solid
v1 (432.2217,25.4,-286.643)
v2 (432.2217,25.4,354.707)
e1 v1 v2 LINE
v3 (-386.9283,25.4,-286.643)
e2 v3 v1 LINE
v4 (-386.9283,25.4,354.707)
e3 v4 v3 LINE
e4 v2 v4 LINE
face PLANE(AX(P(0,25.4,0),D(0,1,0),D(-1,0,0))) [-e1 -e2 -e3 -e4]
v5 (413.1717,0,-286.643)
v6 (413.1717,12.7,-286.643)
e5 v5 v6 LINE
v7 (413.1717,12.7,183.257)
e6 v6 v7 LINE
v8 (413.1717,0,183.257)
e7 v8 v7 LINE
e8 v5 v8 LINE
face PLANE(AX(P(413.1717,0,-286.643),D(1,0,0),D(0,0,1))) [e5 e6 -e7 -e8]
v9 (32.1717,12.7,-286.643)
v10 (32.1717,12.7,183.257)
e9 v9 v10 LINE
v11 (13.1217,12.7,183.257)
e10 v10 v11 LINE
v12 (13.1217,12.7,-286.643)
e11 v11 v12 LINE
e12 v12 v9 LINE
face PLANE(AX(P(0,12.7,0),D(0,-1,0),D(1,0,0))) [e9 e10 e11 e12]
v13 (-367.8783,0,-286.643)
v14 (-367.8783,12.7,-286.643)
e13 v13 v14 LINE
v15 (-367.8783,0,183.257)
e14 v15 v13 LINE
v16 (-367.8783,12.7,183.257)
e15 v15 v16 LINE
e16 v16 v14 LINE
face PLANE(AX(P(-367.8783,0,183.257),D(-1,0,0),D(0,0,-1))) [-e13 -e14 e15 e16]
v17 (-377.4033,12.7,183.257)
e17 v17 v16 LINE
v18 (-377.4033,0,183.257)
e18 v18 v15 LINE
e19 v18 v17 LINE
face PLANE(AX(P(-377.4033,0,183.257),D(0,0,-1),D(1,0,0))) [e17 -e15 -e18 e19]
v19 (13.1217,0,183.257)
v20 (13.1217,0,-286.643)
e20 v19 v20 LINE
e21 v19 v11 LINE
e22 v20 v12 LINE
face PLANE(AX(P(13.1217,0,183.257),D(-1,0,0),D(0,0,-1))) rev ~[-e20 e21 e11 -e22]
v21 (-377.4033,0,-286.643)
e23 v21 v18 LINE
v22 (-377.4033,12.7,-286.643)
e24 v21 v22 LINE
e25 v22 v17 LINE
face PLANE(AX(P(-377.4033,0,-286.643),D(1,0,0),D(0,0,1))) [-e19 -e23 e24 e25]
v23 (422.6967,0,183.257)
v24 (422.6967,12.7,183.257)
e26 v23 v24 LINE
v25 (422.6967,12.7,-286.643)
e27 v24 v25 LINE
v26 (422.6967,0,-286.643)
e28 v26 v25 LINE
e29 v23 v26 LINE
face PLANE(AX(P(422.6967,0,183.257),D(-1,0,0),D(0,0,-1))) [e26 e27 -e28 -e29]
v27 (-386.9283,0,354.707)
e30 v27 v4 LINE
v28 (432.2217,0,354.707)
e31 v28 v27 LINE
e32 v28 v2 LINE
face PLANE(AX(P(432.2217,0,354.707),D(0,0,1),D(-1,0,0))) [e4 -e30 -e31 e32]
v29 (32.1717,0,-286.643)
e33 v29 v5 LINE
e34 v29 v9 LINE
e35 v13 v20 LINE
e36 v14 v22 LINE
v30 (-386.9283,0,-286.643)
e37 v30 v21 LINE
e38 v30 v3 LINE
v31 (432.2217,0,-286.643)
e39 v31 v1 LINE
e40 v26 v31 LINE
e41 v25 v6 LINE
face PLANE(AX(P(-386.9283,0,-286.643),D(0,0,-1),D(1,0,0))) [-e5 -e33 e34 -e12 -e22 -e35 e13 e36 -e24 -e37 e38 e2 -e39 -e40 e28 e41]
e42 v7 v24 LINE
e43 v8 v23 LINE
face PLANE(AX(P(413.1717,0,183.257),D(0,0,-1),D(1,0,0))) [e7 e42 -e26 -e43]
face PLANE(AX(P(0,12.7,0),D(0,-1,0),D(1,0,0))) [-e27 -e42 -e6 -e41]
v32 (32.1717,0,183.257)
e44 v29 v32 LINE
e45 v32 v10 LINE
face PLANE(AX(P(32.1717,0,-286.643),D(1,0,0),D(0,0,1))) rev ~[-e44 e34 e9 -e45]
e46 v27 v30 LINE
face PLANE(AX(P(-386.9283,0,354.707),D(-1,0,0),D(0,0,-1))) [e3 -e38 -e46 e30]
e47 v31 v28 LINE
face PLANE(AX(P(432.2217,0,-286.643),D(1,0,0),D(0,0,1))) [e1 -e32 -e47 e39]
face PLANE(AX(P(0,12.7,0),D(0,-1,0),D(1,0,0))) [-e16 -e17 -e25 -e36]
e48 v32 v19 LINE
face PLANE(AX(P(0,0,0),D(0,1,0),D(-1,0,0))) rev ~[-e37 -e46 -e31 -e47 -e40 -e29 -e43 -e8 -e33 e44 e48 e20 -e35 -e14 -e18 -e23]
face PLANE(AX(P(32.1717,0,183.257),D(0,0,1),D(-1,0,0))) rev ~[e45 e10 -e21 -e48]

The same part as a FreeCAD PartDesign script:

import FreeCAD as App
import Part
import Sketcher
from FreeCAD import Vector
Q = App.Units.Quantity

doc = App.newDocument("Part")
params = doc.addObject("Spreadsheet::Sheet", "Params")
for row, (alias, value) in enumerate([
    ("sketch1_width", "32.25 in"),
    ("sketch1_height", "25.25 in"),
    ("pad1_length", "1 in"),
    ("sketch2_height", "18.5 in"),
    ("sketch2_width", "0.75 in"),
    ("sketch2_width2", "0.375 in"),
    ("pocket1_length", "0.5 in"),
], start=1):
    params.set(f"A{row}", alias)
    params.set(f"B{row}", "=" + value)
    params.setAlias(f"B{row}", alias)

body = doc.addObject("PartDesign::Body", "Body")

# Sketch on XZ plane
sketch1 = doc.addObject("Sketcher::SketchObject", "Sketch")
body.addObject(sketch1)
sketch1.AttachmentSupport = (doc.XZ_Plane, [""])
sketch1.MapMode = "FlatFace"
sketch1.addGeometry([
    Part.LineSegment(Vector(432, -287, 0), Vector(-387, -287, 0)),
    Part.LineSegment(Vector(-387, -287, 0), Vector(-387, 355, 0)),
    Part.LineSegment(Vector(-387, 355, 0), Vector(432, 355, 0)),
    Part.LineSegment(Vector(432, 355, 0), Vector(432, -287, 0)),
], False)
sketch1.addConstraint([
    Sketcher.Constraint("Coincident", 0, 2, 1, 1),
    Sketcher.Constraint("Coincident", 1, 2, 2, 1),
    Sketcher.Constraint("Coincident", 2, 2, 3, 1),
    Sketcher.Constraint("Coincident", 3, 2, 0, 1),
    Sketcher.Constraint("Horizontal", 0),
    Sketcher.Constraint("Vertical", 1),
    Sketcher.Constraint("Horizontal", 2),
    Sketcher.Constraint("Vertical", 3),
    Sketcher.Constraint("DistanceX", 0, 2, 0, 1, Q("32.25 in")),
    Sketcher.Constraint("DistanceY", 1, 1, 1, 2, Q("25.25 in")),
    Sketcher.Constraint("DistanceX", 0, 2, -1, 1, Q("15.2334 in")),
    Sketcher.Constraint("DistanceY", 0, 2, -1, 1, 286.643),
])
sketch1.setExpression("Constraints[8]", "Params.sketch1_width")
sketch1.setExpression("Constraints[9]", "Params.sketch1_height")
pad1 = doc.addObject("PartDesign::Pad", "Pad")
body.addObject(pad1)
pad1.Profile = sketch1
pad1.setExpression("Length", "Params.pad1_length")
pad1.Reversed = True

# Sketch on XZ plane
sketch2 = doc.addObject("Sketcher::SketchObject", "Sketch001")
body.addObject(sketch2)
sketch2.AttachmentSupport = (doc.XZ_Plane, [""])
sketch2.MapMode = "FlatFace"
sketch2.addGeometry([
    Part.LineSegment(Vector(-377, -287, 0), Vector(-368, -287, 0)),  # 0
    Part.LineSegment(Vector(-368, -287, 0), Vector(-368, 183, 0)),  # 1
    Part.LineSegment(Vector(-368, 183, 0), Vector(-377, 183, 0)),  # 2
    Part.LineSegment(Vector(-377, 183, 0), Vector(-377, -287, 0)),  # 3
    Part.LineSegment(Vector(13, -287, 0), Vector(32, -287, 0)),  # 4
    Part.LineSegment(Vector(32, -287, 0), Vector(32, 183, 0)),  # 5
    Part.LineSegment(Vector(32, 183, 0), Vector(13, 183, 0)),  # 6
    Part.LineSegment(Vector(13, 183, 0), Vector(13, -287, 0)),  # 7
    Part.LineSegment(Vector(413, -287, 0), Vector(423, -287, 0)),  # 8
    Part.LineSegment(Vector(423, -287, 0), Vector(423, 183, 0)),  # 9
    Part.LineSegment(Vector(423, 183, 0), Vector(413, 183, 0)),  # 10
    Part.LineSegment(Vector(413, 183, 0), Vector(413, -287, 0)),  # 11
], False)
sketch2.addConstraint([
    Sketcher.Constraint("Coincident", 0, 2, 1, 1),
    Sketcher.Constraint("Coincident", 1, 2, 2, 1),
    Sketcher.Constraint("Coincident", 2, 2, 3, 1),
    Sketcher.Constraint("Coincident", 3, 2, 0, 1),
    Sketcher.Constraint("Coincident", 4, 2, 5, 1),
    Sketcher.Constraint("Coincident", 5, 2, 6, 1),
    Sketcher.Constraint("Coincident", 6, 2, 7, 1),
    Sketcher.Constraint("Coincident", 7, 2, 4, 1),
    Sketcher.Constraint("Coincident", 8, 2, 9, 1),
    Sketcher.Constraint("Coincident", 9, 2, 10, 1),
    Sketcher.Constraint("Coincident", 10, 2, 11, 1),
    Sketcher.Constraint("Coincident", 11, 2, 8, 1),
    Sketcher.Constraint("Horizontal", 0),
    Sketcher.Constraint("Vertical", 1),
    Sketcher.Constraint("Horizontal", 2),
    Sketcher.Constraint("Vertical", 3),
    Sketcher.Constraint("Horizontal", 4),
    Sketcher.Constraint("Vertical", 5),
    Sketcher.Constraint("Horizontal", 6),
    Sketcher.Constraint("Vertical", 7),
    Sketcher.Constraint("Horizontal", 8),
    Sketcher.Constraint("Vertical", 9),
    Sketcher.Constraint("Horizontal", 10),
    Sketcher.Constraint("Vertical", 11),
    Sketcher.Constraint("Horizontal", 3, 2, 4, 2),
    Sketcher.Constraint("Horizontal", 2, 2, 5, 2),
    Sketcher.Constraint("Horizontal", 7, 2, 8, 2),
    Sketcher.Constraint("Horizontal", 6, 2, 9, 2),
    Sketcher.Constraint("Equal", 2, 8),
    Sketcher.Constraint("DistanceY", 1, 1, 1, 2, Q("18.5 in")),
    Sketcher.Constraint("DistanceX", 4, 1, 4, 2, Q("0.75 in")),
    Sketcher.Constraint("DistanceX", 0, 1, 0, 2, Q("0.375 in")),
    Sketcher.Constraint("DistanceX", 0, 2, 4, 2, Q("15.75 in")),
    Sketcher.Constraint("DistanceX", 6, 2, 10, 2, Q("15.75 in")),
    Sketcher.Constraint("DistanceX", 0, 2, -1, 1, Q("14.4834 in")),
    Sketcher.Constraint("DistanceY", 0, 2, -1, 1, 286.643),
])
sketch2.setExpression("Constraints[29]", "Params.sketch2_height")
sketch2.setExpression("Constraints[30]", "Params.sketch2_width")
sketch2.setExpression("Constraints[31]", "Params.sketch2_width2")
pocket1 = doc.addObject("PartDesign::Pocket", "Pocket")
body.addObject(pocket1)
pocket1.Profile = sketch2
pocket1.setExpression("Length", "Params.pocket1_length")

doc.recompute()
